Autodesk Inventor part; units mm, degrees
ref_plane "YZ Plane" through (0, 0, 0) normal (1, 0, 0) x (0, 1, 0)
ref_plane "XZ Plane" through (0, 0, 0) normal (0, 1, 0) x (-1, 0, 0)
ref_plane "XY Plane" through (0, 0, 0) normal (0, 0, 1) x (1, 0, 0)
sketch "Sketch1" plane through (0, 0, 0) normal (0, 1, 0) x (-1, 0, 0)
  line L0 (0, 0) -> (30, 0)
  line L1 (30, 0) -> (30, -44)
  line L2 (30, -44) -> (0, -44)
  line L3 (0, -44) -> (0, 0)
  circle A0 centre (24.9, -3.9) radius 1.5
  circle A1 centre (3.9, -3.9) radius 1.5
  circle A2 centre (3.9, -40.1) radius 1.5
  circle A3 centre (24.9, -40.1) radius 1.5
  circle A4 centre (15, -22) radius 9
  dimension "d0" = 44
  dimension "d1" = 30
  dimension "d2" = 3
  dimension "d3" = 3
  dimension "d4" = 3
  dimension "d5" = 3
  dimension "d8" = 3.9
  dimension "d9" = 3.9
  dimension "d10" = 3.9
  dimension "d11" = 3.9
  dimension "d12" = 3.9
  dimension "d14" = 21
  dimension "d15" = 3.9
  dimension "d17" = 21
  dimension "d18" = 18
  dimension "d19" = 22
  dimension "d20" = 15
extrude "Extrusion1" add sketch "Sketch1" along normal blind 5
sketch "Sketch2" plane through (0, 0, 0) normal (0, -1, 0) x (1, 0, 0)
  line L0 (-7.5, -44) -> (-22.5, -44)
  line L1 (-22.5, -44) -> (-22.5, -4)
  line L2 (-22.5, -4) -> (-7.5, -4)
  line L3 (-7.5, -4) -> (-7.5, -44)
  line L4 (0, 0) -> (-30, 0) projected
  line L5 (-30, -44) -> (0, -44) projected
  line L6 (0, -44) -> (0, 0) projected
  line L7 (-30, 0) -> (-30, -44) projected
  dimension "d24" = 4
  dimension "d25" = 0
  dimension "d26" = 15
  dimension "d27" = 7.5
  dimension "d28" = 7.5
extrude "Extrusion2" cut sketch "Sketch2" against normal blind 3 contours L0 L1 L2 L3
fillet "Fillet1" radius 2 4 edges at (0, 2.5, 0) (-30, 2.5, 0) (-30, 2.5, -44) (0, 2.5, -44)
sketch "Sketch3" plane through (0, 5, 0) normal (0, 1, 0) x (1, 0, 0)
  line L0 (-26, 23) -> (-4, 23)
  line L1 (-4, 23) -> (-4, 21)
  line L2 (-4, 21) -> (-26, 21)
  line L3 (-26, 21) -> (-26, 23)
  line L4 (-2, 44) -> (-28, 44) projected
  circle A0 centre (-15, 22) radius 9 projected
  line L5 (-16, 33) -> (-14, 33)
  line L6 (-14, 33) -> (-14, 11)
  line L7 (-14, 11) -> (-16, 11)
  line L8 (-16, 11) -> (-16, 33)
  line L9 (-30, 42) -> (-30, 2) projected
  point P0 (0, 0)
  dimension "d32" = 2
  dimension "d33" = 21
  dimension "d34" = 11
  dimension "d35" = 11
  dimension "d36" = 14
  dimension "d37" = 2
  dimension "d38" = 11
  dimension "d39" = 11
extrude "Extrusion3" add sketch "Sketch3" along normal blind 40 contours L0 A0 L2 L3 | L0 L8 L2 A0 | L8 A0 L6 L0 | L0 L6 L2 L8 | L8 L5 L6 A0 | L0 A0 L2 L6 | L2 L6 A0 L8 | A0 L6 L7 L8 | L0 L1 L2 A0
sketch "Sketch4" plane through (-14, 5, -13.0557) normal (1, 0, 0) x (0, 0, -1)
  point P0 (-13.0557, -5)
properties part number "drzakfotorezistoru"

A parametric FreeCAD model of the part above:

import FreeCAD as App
import Part
import Sketcher

V = App.Vector


def edges_at(feature, points):
    """Names of the edges that pass closest to the given points."""
    edges = feature.Shape.Edges
    near = lambda p: min(range(len(edges)), key=lambda i: edges[i].distToShape(Part.Vertex(*p))[0])
    return sorted({f"Edge{near(p) + 1}" for p in points})

doc = App.newDocument("Part")
body = doc.addObject("PartDesign::Body", "Body")

# Sketch on XZ plane
sketch1 = body.newObject("Sketcher::SketchObject", "Sketch")
sketch1.AttachmentSupport = (doc.getObject("XZ_Plane"), [""])
sketch1.MapMode = "FlatFace"
sketch1.addGeometry(Part.LineSegment(V(-30, 0, 0), V(0, 0, 0)), False)
sketch1.addGeometry(Part.LineSegment(V(0, 0, 0), V(0, -44, 0)), False)
sketch1.addGeometry(Part.LineSegment(V(0, -44, 0), V(-30, -44, 0)), False)
sketch1.addGeometry(Part.LineSegment(V(-30, -44, 0), V(-30, 0, 0)), False)
sketch1.addGeometry(Part.Circle(V(-3.9, -40.1, 0), V(0, 0, 1), 1.5), False)
sketch1.addGeometry(Part.Circle(V(-24.9, -40.1, 0), V(0, 0, 1), 1.5), False)
sketch1.addGeometry(Part.Circle(V(-3.9, -3.9, 0), V(0, 0, 1), 1.5), False)
sketch1.addGeometry(Part.Circle(V(-15, -22, 0), V(0, 0, 1), 9), False)
sketch1.addGeometry(Part.Circle(V(-24.9, -3.9, 0), V(0, 0, 1), 1.5), False)
sketch1.addConstraint(Sketcher.Constraint("Coincident", 0, 2, 1, 1))
sketch1.addConstraint(Sketcher.Constraint("Coincident", 1, 2, 2, 1))
sketch1.addConstraint(Sketcher.Constraint("Coincident", 2, 2, 3, 1))
sketch1.addConstraint(Sketcher.Constraint("Coincident", 3, 2, 0, 1))
sketch1.addConstraint(Sketcher.Constraint("Horizontal", 0))
sketch1.addConstraint(Sketcher.Constraint("Vertical", 1))
sketch1.addConstraint(Sketcher.Constraint("Horizontal", 2))
sketch1.addConstraint(Sketcher.Constraint("Vertical", 3))
sketch1.addConstraint(Sketcher.Constraint("Coincident", 0, 2, -1, 1))
sketch1.addConstraint(Sketcher.Constraint("Equal", 4, 5))
sketch1.addConstraint(Sketcher.Constraint("Equal", 5, 6))
sketch1.addConstraint(Sketcher.Constraint("Equal", 6, 8))
sketch1.addConstraint(Sketcher.Constraint("Horizontal", 4, 3, 5, 3))
sketch1.addConstraint(Sketcher.Constraint("Horizontal", 6, 3, 8, 3))
sketch1.addConstraint(Sketcher.Constraint("Vertical", 4, 3, 6, 3))
sketch1.addConstraint(Sketcher.Constraint("Vertical", 5, 3, 8, 3))
sketch1.addConstraint(Sketcher.Constraint("Diameter", 4, 3.0))
sketch1.addConstraint(Sketcher.Constraint("Diameter", 7, 18.0))
sketch1.addConstraint(Sketcher.Constraint("DistanceX", 0, 1, 0, 2, 30.0))
sketch1.addConstraint(Sketcher.Constraint("DistanceY", 1, 2, 1, 1, 44.0))
sketch1.addConstraint(Sketcher.Constraint("DistanceX", 7, 3, -1, 1, 15.0))
sketch1.addConstraint(Sketcher.Constraint("DistanceY", 7, 3, -1, 1, 22.0))
sketch1.addConstraint(Sketcher.Constraint("DistanceX", 5, 3, 4, 3, 21.0))
sketch1.addConstraint(Sketcher.Constraint("DistanceX", 4, 3, -1, 1, 3.9))
sketch1.addConstraint(Sketcher.Constraint("DistanceY", 6, 3, -1, 1, 3.9))
sketch1.addConstraint(Sketcher.Constraint("DistanceY", 1, 2, 4, 3, 3.9))
pad1 = body.newObject("PartDesign::Pad", "Pad")
pad1.Profile = sketch1
pad1.Length = 5
pad1.Reversed = True

# Sketch on XZ plane
sketch2 = body.newObject("Sketcher::SketchObject", "Sketch001")
sketch2.AttachmentSupport = (doc.getObject("XZ_Plane"), [""])
sketch2.MapMode = "FlatFace"
sketch2.addGeometry(Part.LineSegment(V(-22.5, -44, 0), V(-7.5, -44, 0)), False)
sketch2.addGeometry(Part.LineSegment(V(-7.5, -44, 0), V(-7.5, -4, 0)), False)
sketch2.addGeometry(Part.LineSegment(V(-7.5, -4, 0), V(-22.5, -4, 0)), False)
sketch2.addGeometry(Part.LineSegment(V(-22.5, -4, 0), V(-22.5, -44, 0)), False)
sketch2.addConstraint(Sketcher.Constraint("Coincident", 0, 2, 1, 1))
sketch2.addConstraint(Sketcher.Constraint("Coincident", 1, 2, 2, 1))
sketch2.addConstraint(Sketcher.Constraint("Coincident", 2, 2, 3, 1))
sketch2.addConstraint(Sketcher.Constraint("Coincident", 3, 2, 0, 1))
sketch2.addConstraint(Sketcher.Constraint("Horizontal", 0))
sketch2.addConstraint(Sketcher.Constraint("Vertical", 1))
sketch2.addConstraint(Sketcher.Constraint("Horizontal", 2))
sketch2.addConstraint(Sketcher.Constraint("Vertical", 3))
sketch2.addConstraint(Sketcher.Constraint("DistanceX", 0, 1, 0, 2, 15.0))
sketch2.addConstraint(Sketcher.Constraint("DistanceY", 1, 2, -1, 1, 4.0))
sketch2.addConstraint(Sketcher.Constraint("DistanceX", 0, 2, -1, 1, 7.5))
sketch2.addConstraint(Sketcher.Constraint("DistanceY", 1, 1, 1, 2, 40.0))
pocket1 = body.newObject("PartDesign::Pocket", "Pocket")
pocket1.Profile = sketch2
pocket1.Length = 3
doc.recompute()

fillet = body.newObject("PartDesign::Fillet", "Fillet")
fillet.Base = (pocket1, edges_at(pocket1, [
    (0, 2.5, 0),
    (-30, 2.5, 0),
    (-30, 2.5, -44),
    (0, 2.5, -44),
]))
fillet.Radius = 2

# Sketch on XZ plane
sketch3 = body.newObject("Sketcher::SketchObject", "Sketch002")
sketch3.AttachmentSupport = (doc.getObject("XZ_Plane"), [""])
sketch3.MapMode = "FlatFace"
sketch3.AttachmentOffset = App.Placement(V(0, 0, -5), App.Rotation())
sketch3.addGeometry(Part.LineSegment(V(-26, -23, 0), V(-26, -21, 0)), False)
sketch3.addGeometry(Part.LineSegment(V(-26, -21, 0), V(-16, -21, 0)), False)
sketch3.addGeometry(Part.LineSegment(V(-16, -21, 0), V(-16, -11, 0)), False)
sketch3.addGeometry(Part.LineSegment(V(-16, -11, 0), V(-14, -11, 0)), False)
sketch3.addGeometry(Part.LineSegment(V(-14, -11, 0), V(-14, -21, 0)), False)
sketch3.addGeometry(Part.LineSegment(V(-14, -21, 0), V(-4, -21, 0)), False)
sketch3.addGeometry(Part.LineSegment(V(-4, -21, 0), V(-4, -23, 0)), False)
sketch3.addGeometry(Part.LineSegment(V(-4, -23, 0), V(-14, -23, 0)), False)
sketch3.addGeometry(Part.LineSegment(V(-14, -23, 0), V(-14, -33, 0)), False)
sketch3.addGeometry(Part.LineSegment(V(-14, -33, 0), V(-16, -33, 0)), False)
sketch3.addGeometry(Part.LineSegment(V(-16, -33, 0), V(-16, -23, 0)), False)
sketch3.addGeometry(Part.LineSegment(V(-16, -23, 0), V(-26, -23, 0)), False)
sketch3.addConstraint(Sketcher.Constraint("Coincident", 0, 2, 1, 1))
sketch3.addConstraint(Sketcher.Constraint("Coincident", 1, 2, 2, 1))
sketch3.addConstraint(Sketcher.Constraint("Coincident", 2, 2, 3, 1))
sketch3.addConstraint(Sketcher.Constraint("Coincident", 3, 2, 4, 1))
sketch3.addConstraint(Sketcher.Constraint("Coincident", 4, 2, 5, 1))
sketch3.addConstraint(Sketcher.Constraint("Coincident", 5, 2, 6, 1))
sketch3.addConstraint(Sketcher.Constraint("Coincident", 6, 2, 7, 1))
sketch3.addConstraint(Sketcher.Constraint("Coincident", 7, 2, 8, 1))
sketch3.addConstraint(Sketcher.Constraint("Coincident", 8, 2, 9, 1))
sketch3.addConstraint(Sketcher.Constraint("Coincident", 9, 2, 10, 1))
sketch3.addConstraint(Sketcher.Constraint("Coincident", 10, 2, 11, 1))
sketch3.addConstraint(Sketcher.Constraint("Coincident", 11, 2, 0, 1))
sketch3.addConstraint(Sketcher.Constraint("Vertical", 0))
sketch3.addConstraint(Sketcher.Constraint("Horizontal", 1))
sketch3.addConstraint(Sketcher.Constraint("Vertical", 2))
sketch3.addConstraint(Sketcher.Constraint("Horizontal", 3))
sketch3.addConstraint(Sketcher.Constraint("Vertical", 4))
sketch3.addConstraint(Sketcher.Constraint("Horizontal", 5))
sketch3.addConstraint(Sketcher.Constraint("Vertical", 6))
sketch3.addConstraint(Sketcher.Constraint("Horizontal", 7))
sketch3.addConstraint(Sketcher.Constraint("Vertical", 8))
sketch3.addConstraint(Sketcher.Constraint("Horizontal", 9))
sketch3.addConstraint(Sketcher.Constraint("Vertical", 10))
sketch3.addConstraint(Sketcher.Constraint("Horizontal", 11))
sketch3.addConstraint(Sketcher.Constraint("Horizontal", 1, 2, 4, 2))
sketch3.addConstraint(Sketcher.Constraint("Horizontal", 7, 2, 10, 2))
sketch3.addConstraint(Sketcher.Constraint("Vertical", 4, 2, 7, 2))
sketch3.addConstraint(Sketcher.Constraint("Vertical", 2, 2, 9, 2))
sketch3.addConstraint(Sketcher.Constraint("Equal", 1, 5))
sketch3.addConstraint(Sketcher.Constraint("Equal", 9, 0))
sketch3.addConstraint(Sketcher.Constraint("Equal", 11, 2))
sketch3.addConstraint(Sketcher.Constraint("Equal", 4, 8))
sketch3.addConstraint(Sketcher.Constraint("DistanceX", 3, 1, 3, 2, 2.0))
sketch3.addConstraint(Sketcher.Constraint("DistanceY", 0, 2, -1, 1, 21.0))
sketch3.addConstraint(Sketcher.Constraint("DistanceY", 2, 2, -1, 1, 11.0))
sketch3.addConstraint(Sketcher.Constraint("DistanceX", 3, 2, -1, 1, 14.0))
pad2 = body.newObject("PartDesign::Pad", "Pad001")
pad2.Profile = sketch3
pad2.Length = 40
pad2.Reversed = True

doc.recompute()
